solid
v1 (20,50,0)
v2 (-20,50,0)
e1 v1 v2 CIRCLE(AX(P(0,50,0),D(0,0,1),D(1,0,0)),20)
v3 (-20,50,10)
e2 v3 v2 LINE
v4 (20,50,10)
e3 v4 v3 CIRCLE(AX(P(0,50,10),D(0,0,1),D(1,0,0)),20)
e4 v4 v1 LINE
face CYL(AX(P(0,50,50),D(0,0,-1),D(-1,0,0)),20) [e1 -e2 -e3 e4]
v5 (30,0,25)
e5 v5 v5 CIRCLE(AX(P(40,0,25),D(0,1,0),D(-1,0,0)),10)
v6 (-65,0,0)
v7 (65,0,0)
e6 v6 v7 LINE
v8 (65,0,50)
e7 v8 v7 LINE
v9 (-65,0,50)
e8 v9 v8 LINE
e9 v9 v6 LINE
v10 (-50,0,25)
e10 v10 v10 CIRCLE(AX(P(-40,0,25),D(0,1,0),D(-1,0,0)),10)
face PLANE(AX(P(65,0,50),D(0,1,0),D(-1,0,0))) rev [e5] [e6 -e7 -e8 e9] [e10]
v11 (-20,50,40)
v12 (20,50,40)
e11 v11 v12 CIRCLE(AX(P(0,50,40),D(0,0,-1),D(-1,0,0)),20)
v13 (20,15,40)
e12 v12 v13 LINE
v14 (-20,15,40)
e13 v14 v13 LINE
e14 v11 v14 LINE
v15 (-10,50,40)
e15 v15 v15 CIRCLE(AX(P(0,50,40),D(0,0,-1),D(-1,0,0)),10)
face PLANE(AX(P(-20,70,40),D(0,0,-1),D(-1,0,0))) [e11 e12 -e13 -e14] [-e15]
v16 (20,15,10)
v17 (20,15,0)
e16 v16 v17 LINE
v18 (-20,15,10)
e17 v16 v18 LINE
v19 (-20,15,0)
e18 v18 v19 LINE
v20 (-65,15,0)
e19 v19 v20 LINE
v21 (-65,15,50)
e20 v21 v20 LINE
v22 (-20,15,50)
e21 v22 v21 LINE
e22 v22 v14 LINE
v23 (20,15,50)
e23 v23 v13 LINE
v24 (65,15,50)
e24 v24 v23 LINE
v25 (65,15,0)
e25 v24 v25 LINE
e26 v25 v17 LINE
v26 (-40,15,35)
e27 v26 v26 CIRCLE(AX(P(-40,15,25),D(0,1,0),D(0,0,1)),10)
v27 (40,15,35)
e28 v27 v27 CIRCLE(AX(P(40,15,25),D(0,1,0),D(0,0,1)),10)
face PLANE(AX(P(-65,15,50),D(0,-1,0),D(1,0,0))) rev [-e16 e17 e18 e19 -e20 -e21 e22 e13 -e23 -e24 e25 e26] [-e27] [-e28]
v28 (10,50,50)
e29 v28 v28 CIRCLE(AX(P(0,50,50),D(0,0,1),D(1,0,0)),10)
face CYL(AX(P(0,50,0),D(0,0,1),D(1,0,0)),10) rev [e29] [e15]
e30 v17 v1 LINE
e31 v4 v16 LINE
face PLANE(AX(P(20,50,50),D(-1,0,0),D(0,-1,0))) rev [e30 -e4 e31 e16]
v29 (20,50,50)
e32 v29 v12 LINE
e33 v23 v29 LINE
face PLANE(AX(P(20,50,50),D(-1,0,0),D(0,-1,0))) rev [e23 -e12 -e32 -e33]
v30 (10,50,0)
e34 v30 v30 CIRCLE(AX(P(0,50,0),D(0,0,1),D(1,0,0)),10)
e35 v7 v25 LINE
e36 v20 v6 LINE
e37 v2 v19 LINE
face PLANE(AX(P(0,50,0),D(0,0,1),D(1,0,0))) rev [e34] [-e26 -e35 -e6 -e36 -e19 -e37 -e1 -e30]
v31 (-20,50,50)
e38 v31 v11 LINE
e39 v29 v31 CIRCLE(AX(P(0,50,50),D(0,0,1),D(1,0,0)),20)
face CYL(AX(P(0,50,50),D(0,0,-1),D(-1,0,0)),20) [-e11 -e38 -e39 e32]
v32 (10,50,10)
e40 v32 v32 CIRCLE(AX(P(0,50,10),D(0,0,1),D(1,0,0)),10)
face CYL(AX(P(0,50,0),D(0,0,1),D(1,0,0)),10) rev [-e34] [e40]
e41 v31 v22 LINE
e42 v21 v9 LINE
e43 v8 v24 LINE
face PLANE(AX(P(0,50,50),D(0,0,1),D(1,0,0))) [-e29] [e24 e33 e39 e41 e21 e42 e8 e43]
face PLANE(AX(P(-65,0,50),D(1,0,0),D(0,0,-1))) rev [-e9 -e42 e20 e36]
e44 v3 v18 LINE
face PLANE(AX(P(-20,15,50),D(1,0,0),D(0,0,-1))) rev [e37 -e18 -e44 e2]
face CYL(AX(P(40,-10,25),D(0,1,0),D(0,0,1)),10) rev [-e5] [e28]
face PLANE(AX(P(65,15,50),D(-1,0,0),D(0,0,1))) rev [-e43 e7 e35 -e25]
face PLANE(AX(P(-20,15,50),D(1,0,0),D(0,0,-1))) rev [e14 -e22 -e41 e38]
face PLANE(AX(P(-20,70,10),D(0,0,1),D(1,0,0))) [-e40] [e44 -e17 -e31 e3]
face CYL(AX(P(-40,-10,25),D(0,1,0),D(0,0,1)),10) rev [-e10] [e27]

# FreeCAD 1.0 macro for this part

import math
import FreeCAD as App
import Part
import Sketcher
from FreeCAD import Vector
Q = App.Units.Quantity


def add_polygon(sketch, points):
    """Adds a closed chain of lines whose ends are joined by coincident constraints."""
    first, n = sketch.GeometryCount, len(points)
    for a, b in zip(points, points[1:] + points[:1]):
        sketch.addGeometry(Part.LineSegment(App.Vector(*a, 0), App.Vector(*b, 0)), False)
    for i in range(n):
        sketch.addConstraint(Sketcher.Constraint("Coincident", first + i, 2, first + (i + 1) % n, 1))

doc = App.newDocument("Part")
body = doc.addObject("PartDesign::Body", "Body")

# Sketch on XY plane
sketch1 = body.newObject("Sketcher::SketchObject", "Sketch")
sketch1.AttachmentSupport = (doc.getObject("XY_Plane"), [""])
sketch1.MapMode = "FlatFace"
sketch1.addGeometry(Part.LineSegment(Vector(-65, 15, 0), Vector(-65, 0, 0)), False)
sketch1.addGeometry(Part.LineSegment(Vector(-65, 0, 0), Vector(65, 0, 0)), False)
sketch1.addGeometry(Part.LineSegment(Vector(65, 0, 0), Vector(65, 15, 0)), False)
sketch1.addGeometry(Part.LineSegment(Vector(65, 15, 0), Vector(20, 15, 0)), False)
sketch1.addGeometry(Part.LineSegment(Vector(20, 15, 0), Vector(20, 50, 0)), False)
sketch1.addGeometry(Part.ArcOfCircle(Part.Circle(Vector(0, 50, 0), Vector(0, 0, 1), 20), math.radians(0), math.radians(180)), False)
sketch1.addGeometry(Part.LineSegment(Vector(-20, 50, 0), Vector(-20, 15, 0)), False)
sketch1.addGeometry(Part.LineSegment(Vector(-20, 15, 0), Vector(-65, 15, 0)), False)
sketch1.addConstraint(Sketcher.Constraint("Coincident", 0, 2, 1, 1))
sketch1.addConstraint(Sketcher.Constraint("Coincident", 1, 2, 2, 1))
sketch1.addConstraint(Sketcher.Constraint("Coincident", 2, 2, 3, 1))
sketch1.addConstraint(Sketcher.Constraint("Coincident", 3, 2, 4, 1))
sketch1.addConstraint(Sketcher.Constraint("Tangent", 4, 2, 5, 1))
sketch1.addConstraint(Sketcher.Constraint("Tangent", 5, 2, 6, 1))
sketch1.addConstraint(Sketcher.Constraint("Coincident", 6, 2, 7, 1))
sketch1.addConstraint(Sketcher.Constraint("Coincident", 7, 2, 0, 1))
sketch1.addConstraint(Sketcher.Constraint("Vertical", 0))
sketch1.addConstraint(Sketcher.Constraint("Horizontal", 1))
sketch1.addConstraint(Sketcher.Constraint("Vertical", 2))
sketch1.addConstraint(Sketcher.Constraint("Horizontal", 3))
sketch1.addConstraint(Sketcher.Constraint("Vertical", 4))
sketch1.addConstraint(Sketcher.Constraint("Vertical", 6))
sketch1.addConstraint(Sketcher.Constraint("Horizontal", 7))
sketch1.addConstraint(Sketcher.Constraint("Symmetric", 0, 2, 1, 2, -1, 1))
sketch1.addConstraint(Sketcher.Constraint("Symmetric", 3, 2, 6, 2, -2))
sketch1.addConstraint(Sketcher.Constraint("Radius", 5, Q("20 mm")))
sketch1.addConstraint(Sketcher.Constraint("DistanceX", 1, 1, 1, 2, Q("130 mm")))
sketch1.addConstraint(Sketcher.Constraint("DistanceY", 0, 2, 0, 1, Q("15 mm")))
sketch1.addConstraint(Sketcher.Constraint("DistanceY", 4, 1, 4, 2, Q("35 mm")))
pad1 = body.newObject("PartDesign::Pad", "Pad")
pad1.Profile = sketch1
pad1.Length = 50

# Sketch on XZ plane
sketch2 = body.newObject("Sketcher::SketchObject", "Sketch001")
sketch2.AttachmentSupport = (doc.getObject("XZ_Plane"), [""])
sketch2.MapMode = "FlatFace"
sketch2.AttachmentOffset = App.Placement(Vector(0, 0, -15), App.Rotation())
sketch2.addGeometry(Part.Circle(Vector(-40, 25, 0), Vector(0, 0, 1), 10), False)
sketch2.addConstraint(Sketcher.Constraint("Diameter", 0, Q("20 mm")))
sketch2.addConstraint(Sketcher.Constraint("DistanceX", 0, 3, -1, 1, Q("40 mm")))
sketch2.addConstraint(Sketcher.Constraint("DistanceY", -1, 1, 0, 3, Q("25 mm")))
pocket1 = body.newObject("PartDesign::Pocket", "Pocket")
pocket1.Profile = sketch2
pocket1.Length = 25
pocket1.Reversed = True

# Sketch on XZ plane
sketch3 = body.newObject("Sketcher::SketchObject", "Sketch002")
sketch3.AttachmentSupport = (doc.getObject("XZ_Plane"), [""])
sketch3.MapMode = "FlatFace"
sketch3.AttachmentOffset = App.Placement(Vector(0, 0, -15), App.Rotation())
sketch3.addGeometry(Part.Circle(Vector(40, 25, 0), Vector(0, 0, 1), 10), False)
sketch3.addConstraint(Sketcher.Constraint("Diameter", 0, Q("20 mm")))
sketch3.addConstraint(Sketcher.Constraint("DistanceX", -1, 1, 0, 3, Q("40 mm")))
sketch3.addConstraint(Sketcher.Constraint("DistanceY", -1, 1, 0, 3, Q("25 mm")))
pocket2 = body.newObject("PartDesign::Pocket", "Pocket001")
pocket2.Profile = sketch3
pocket2.Length = 25
pocket2.Reversed = True

# Sketch on XZ plane
sketch4 = body.newObject("Sketcher::SketchObject", "Sketch003")
sketch4.AttachmentSupport = (doc.getObject("XZ_Plane"), [""])
sketch4.MapMode = "FlatFace"
sketch4.AttachmentOffset = App.Placement(Vector(0, 0, -15), App.Rotation())
add_polygon(sketch4, [(-20, 10), (-20, 40), (20, 40), (20, 10)])  # lines 0-3
sketch4.addConstraint(Sketcher.Constraint("Vertical", 0))
sketch4.addConstraint(Sketcher.Constraint("Horizontal", 1))
sketch4.addConstraint(Sketcher.Constraint("Vertical", 2))
sketch4.addConstraint(Sketcher.Constraint("Horizontal", 3))
sketch4.addConstraint(Sketcher.Constraint("DistanceX", 1, 1, 1, 2, Q("40 mm")))
sketch4.addConstraint(Sketcher.Constraint("DistanceY", 0, 1, 0, 2, Q("30 mm")))
sketch4.addConstraint(Sketcher.Constraint("DistanceX", 0, 2, -1, 1, Q("20 mm")))
sketch4.addConstraint(Sketcher.Constraint("DistanceY", -1, 1, 0, 2, Q("40 mm")))
pocket3 = body.newObject("PartDesign::Pocket", "Pocket002")
pocket3.Profile = sketch4
pocket3.Type = "ThroughAll"

# Sketch on XY plane
sketch5 = body.newObject("Sketcher::SketchObject", "Sketch004")
sketch5.AttachmentSupport = (doc.getObject("XY_Plane"), [""])
sketch5.MapMode = "FlatFace"
sketch5.AttachmentOffset = App.Placement(Vector(0, 0, 50), App.Rotation())
sketch5.addGeometry(Part.Circle(Vector(0, 50, 0), Vector(0, 0, 1), 10), False)
sketch5.addConstraint(Sketcher.Constraint("PointOnObject", 0, 3, -2))
sketch5.addConstraint(Sketcher.Constraint("Diameter", 0, Q("20 mm")))
sketch5.addConstraint(Sketcher.Constraint("DistanceY", -1, 1, 0, 3, Q("50 mm")))
pocket4 = body.newObject("PartDesign::Pocket", "Pocket003")
pocket4.Profile = sketch5
pocket4.Type = "ThroughAll"

doc.recompute()
